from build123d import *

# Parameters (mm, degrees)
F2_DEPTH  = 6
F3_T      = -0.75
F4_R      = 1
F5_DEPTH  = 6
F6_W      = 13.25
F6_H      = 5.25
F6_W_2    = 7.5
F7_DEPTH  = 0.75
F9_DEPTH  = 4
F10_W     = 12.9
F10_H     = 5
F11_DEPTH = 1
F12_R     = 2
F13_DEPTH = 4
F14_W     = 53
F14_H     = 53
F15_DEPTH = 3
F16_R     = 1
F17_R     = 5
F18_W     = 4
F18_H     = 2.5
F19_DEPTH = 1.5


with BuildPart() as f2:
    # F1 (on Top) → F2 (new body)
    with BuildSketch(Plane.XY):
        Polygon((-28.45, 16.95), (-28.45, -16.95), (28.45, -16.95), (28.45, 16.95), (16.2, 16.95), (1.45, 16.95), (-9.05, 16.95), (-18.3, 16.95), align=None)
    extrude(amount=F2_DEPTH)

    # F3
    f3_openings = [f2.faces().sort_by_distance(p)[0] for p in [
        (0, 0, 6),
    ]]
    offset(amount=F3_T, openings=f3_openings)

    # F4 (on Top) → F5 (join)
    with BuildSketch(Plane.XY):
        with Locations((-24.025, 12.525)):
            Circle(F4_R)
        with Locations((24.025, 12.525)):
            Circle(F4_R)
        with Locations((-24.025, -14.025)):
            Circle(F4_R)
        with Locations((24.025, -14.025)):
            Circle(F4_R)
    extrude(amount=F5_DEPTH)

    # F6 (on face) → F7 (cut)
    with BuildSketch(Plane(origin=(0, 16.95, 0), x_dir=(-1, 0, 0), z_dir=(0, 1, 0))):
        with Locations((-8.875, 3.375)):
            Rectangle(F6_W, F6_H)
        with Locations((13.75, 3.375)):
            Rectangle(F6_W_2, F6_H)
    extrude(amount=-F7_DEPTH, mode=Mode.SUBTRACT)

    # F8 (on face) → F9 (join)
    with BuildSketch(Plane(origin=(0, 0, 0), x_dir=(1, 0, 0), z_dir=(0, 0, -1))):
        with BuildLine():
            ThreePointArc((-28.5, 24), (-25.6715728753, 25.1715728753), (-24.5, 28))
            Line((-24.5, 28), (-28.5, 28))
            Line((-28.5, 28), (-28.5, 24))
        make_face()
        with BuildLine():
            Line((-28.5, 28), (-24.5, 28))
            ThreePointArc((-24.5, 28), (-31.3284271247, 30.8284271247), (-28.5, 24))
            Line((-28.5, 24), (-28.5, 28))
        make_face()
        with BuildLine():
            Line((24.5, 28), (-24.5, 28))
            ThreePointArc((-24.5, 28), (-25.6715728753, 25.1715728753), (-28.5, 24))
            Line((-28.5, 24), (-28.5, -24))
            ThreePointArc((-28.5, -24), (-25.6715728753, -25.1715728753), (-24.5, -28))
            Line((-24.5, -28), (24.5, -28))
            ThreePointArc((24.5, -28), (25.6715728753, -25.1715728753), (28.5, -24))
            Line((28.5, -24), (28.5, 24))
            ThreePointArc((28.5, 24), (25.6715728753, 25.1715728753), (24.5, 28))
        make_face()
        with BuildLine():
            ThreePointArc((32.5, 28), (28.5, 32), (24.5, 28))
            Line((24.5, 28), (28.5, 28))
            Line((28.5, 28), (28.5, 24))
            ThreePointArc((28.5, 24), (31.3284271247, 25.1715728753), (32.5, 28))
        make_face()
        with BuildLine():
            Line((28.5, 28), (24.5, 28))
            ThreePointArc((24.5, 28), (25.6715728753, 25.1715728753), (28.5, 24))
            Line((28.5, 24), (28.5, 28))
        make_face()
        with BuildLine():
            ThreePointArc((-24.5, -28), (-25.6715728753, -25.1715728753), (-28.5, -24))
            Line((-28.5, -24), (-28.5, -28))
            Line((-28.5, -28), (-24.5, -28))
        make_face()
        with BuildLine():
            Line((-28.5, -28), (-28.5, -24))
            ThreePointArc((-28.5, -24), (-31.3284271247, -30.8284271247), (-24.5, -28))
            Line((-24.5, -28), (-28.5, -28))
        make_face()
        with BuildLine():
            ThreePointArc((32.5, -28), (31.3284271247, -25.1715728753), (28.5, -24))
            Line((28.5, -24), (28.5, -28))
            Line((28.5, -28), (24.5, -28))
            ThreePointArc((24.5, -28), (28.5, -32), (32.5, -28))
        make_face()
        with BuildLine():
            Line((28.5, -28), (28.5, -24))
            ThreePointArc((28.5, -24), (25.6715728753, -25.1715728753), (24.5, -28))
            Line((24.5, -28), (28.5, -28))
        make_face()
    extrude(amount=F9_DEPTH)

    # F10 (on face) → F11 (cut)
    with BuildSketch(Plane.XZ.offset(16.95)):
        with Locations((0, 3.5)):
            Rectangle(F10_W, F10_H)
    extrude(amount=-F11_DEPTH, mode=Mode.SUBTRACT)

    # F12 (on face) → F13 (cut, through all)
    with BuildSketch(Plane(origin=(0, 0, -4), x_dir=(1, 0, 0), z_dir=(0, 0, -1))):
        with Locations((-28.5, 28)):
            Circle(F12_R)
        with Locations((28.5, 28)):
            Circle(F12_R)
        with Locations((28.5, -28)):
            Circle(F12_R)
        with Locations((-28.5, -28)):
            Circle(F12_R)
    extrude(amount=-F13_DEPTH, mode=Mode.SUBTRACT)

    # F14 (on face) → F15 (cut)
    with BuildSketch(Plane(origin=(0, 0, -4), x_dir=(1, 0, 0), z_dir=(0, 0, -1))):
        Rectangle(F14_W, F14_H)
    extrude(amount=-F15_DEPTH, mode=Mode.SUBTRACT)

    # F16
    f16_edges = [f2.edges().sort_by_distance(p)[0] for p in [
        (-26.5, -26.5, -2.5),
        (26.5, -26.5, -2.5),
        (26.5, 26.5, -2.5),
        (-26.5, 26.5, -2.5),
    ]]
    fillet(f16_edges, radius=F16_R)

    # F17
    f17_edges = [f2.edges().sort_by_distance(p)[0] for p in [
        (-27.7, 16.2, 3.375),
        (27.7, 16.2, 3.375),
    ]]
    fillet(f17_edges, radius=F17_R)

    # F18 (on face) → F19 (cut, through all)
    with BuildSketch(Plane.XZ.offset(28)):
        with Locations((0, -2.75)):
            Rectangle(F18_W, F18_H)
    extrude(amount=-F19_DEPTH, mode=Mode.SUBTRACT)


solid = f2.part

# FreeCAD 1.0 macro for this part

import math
import FreeCAD as App
import Part
import Sketcher
Q = App.Units.Quantity


def edges_at(feature, points):
    """Names of the edges that pass closest to the given points."""
    edges = feature.Shape.Edges
    near = lambda p: min(range(len(edges)), key=lambda i: edges[i].distToShape(Part.Vertex(*p))[0])
    return sorted({f"Edge{near(p) + 1}" for p in points})


def faces_at(feature, points):
    """Names of the faces that lie closest to the given points."""
    faces = feature.Shape.Faces
    near = lambda p: min(range(len(faces)), key=lambda i: faces[i].distToShape(Part.Vertex(*p))[0])
    return sorted({f"Face{near(p) + 1}" for p in points})


def add_polygon(sketch, points):
    """Adds a closed chain of lines whose ends are joined by coincident constraints."""
    first, n = sketch.GeometryCount, len(points)
    for a, b in zip(points, points[1:] + points[:1]):
        sketch.addGeometry(Part.LineSegment(App.Vector(*a, 0), App.Vector(*b, 0)), False)
    for i in range(n):
        sketch.addConstraint(Sketcher.Constraint("Coincident", first + i, 2, first + (i + 1) % n, 1))

doc = App.newDocument("Part")
body = doc.addObject("PartDesign::Body", "Body")

sketch1 = doc.addObject("Sketcher::SketchObject", "Sketch")
body.addObject(sketch1)
sketch1.AttachmentSupport = (doc.XY_Plane, [""])
sketch1.MapMode = "FlatFace"
add_polygon(sketch1, [(-28, 17), (-28, -17), (28, -17), (28, 17)])
sketch1.addConstraint([
    Sketcher.Constraint("Vertical", 0),
    Sketcher.Constraint("Horizontal", 1),
    Sketcher.Constraint("Vertical", 2),
    Sketcher.Constraint("Horizontal", 3),
    Sketcher.Constraint("Symmetric", 0, 2, 2, 2, -1, 1),
    Sketcher.Constraint("DistanceX", 1, 1, 1, 2, Q("56.9 mm")),
    Sketcher.Constraint("DistanceY", 0, 2, 0, 1, Q("33.9 mm")),
])
pad1 = doc.addObject("PartDesign::Pad", "Pad")
body.addObject(pad1)
pad1.Profile = sketch1
pad1.Length = 6
doc.recompute()

thickness = doc.addObject("PartDesign::Thickness", "Thickness")
body.addObject(thickness)
thickness.Base = (pad1, faces_at(pad1, [(0, 0, 6)]))
thickness.Value = 0.75
thickness.Reversed = True
thickness.Join = "Arc"

sketch2 = doc.addObject("Sketcher::SketchObject", "Sketch001")
body.addObject(sketch2)
sketch2.AttachmentSupport = (doc.XY_Plane, [""])
sketch2.MapMode = "FlatFace"
sketch2.addGeometry([
    Part.Circle(App.Vector(-24, 12.5, 0), App.Vector(0, 0, 1), 1),
    Part.Circle(App.Vector(24, 12.5, 0), App.Vector(0, 0, 1), 1),
    Part.Circle(App.Vector(-24, -14, 0), App.Vector(0, 0, 1), 1),
    Part.Circle(App.Vector(24, -14, 0), App.Vector(0, 0, 1), 1),
], False)
sketch2.addConstraint([
    Sketcher.Constraint("Equal", 0, 1),
    Sketcher.Constraint("Equal", 1, 2),
    Sketcher.Constraint("Equal", 2, 3),
    Sketcher.Constraint("Symmetric", 0, 3, 1, 3, -2),
    Sketcher.Constraint("Symmetric", 2, 3, 3, 3, -2),
    Sketcher.Constraint("Vertical", 0, 3, 2, 3),
    Sketcher.Constraint("Diameter", 0, Q("2 mm")),
    Sketcher.Constraint("DistanceX", 0, 3, 1, 3, Q("48.05 mm")),
    Sketcher.Constraint("DistanceY", 2, 3, 0, 3, Q("26.55 mm")),
    Sketcher.Constraint("DistanceY", -1, 1, 0, 3, Q("12.525 mm")),
])
pad2 = doc.addObject("PartDesign::Pad", "Pad001")
body.addObject(pad2)
pad2.Profile = sketch2
pad2.Length = 6

sketch3 = doc.addObject("Sketcher::SketchObject", "Sketch002")
body.addObject(sketch3)
sketch3.AttachmentSupport = (doc.XZ_Plane, [""])
sketch3.MapMode = "FlatFace"
sketch3.AttachmentOffset = App.Placement(App.Vector(0, 0, -16.95), App.Rotation())
add_polygon(sketch3, [(16, 6), (16, 1), (2, 1), (2, 6)])
add_polygon(sketch3, [(-10, 6), (-10, 1), (-18, 1), (-18, 6)])
sketch3.addConstraint([
    Sketcher.Constraint("Vertical", 0),
    Sketcher.Constraint("Horizontal", 1),
    Sketcher.Constraint("Vertical", 2),
    Sketcher.Constraint("Horizontal", 3),
    Sketcher.Constraint("Vertical", 4),
    Sketcher.Constraint("Horizontal", 5),
    Sketcher.Constraint("Vertical", 6),
    Sketcher.Constraint("Horizontal", 7),
    Sketcher.Constraint("Horizontal", 1, 2, 4, 2),
    Sketcher.Constraint("Horizontal", 3, 2, 6, 2),
    Sketcher.Constraint("DistanceX", 5, 2, 5, 1, Q("7.5 mm")),
    Sketcher.Constraint("DistanceY", -1, 1, 2, 2, Q("6 mm")),
    Sketcher.Constraint("DistanceX", 4, 2, -1, 1, Q("10 mm")),
    Sketcher.Constraint("DistanceX", 5, 2, 0, 2, Q("33 mm")),
    Sketcher.Constraint("DistanceX", 1, 2, 1, 1, Q("13.25 mm")),
    Sketcher.Constraint("DistanceY", 0, 2, 0, 1, Q("5.25 mm")),
])
pocket1 = doc.addObject("PartDesign::Pocket", "Pocket")
body.addObject(pocket1)
pocket1.Profile = sketch3
pocket1.Length = 0.75
pocket1.Reversed = True

sketch4 = doc.addObject("Sketcher::SketchObject", "Sketch003")
body.addObject(sketch4)
sketch4.AttachmentSupport = (doc.XY_Plane, [""])
sketch4.MapMode = "FlatFace"
sketch4.addGeometry([
    Part.ArcOfCircle(Part.Circle(App.Vector(-28.5, -28, 0), App.Vector(0, 0, 1), 4), math.radians(90), math.radians(360)),
    Part.LineSegment(App.Vector(-28.5, -24, 0), App.Vector(-28.5, 24, 0)),
    Part.ArcOfCircle(Part.Circle(App.Vector(-28.5, 28, 0), App.Vector(0, 0, 1), 4), math.radians(0), math.radians(270)),
    Part.LineSegment(App.Vector(-24.5, 28, 0), App.Vector(24.5, 28, 0)),
    Part.ArcOfCircle(Part.Circle(App.Vector(28.5, 28, 0), App.Vector(0, 0, 1), 4), math.radians(0), math.radians(180)),
    Part.ArcOfCircle(Part.Circle(App.Vector(28.5, 28, 0), App.Vector(0, 0, 1), 4), math.radians(-90), math.radians(0)),
    Part.LineSegment(App.Vector(28.5, 24, 0), App.Vector(28.5, -24, 0)),
    Part.ArcOfCircle(Part.Circle(App.Vector(28.5, -28, 0), App.Vector(0, 0, 1), 4), math.radians(0), math.radians(90)),
    Part.ArcOfCircle(Part.Circle(App.Vector(28.5, -28, 0), App.Vector(0, 0, 1), 4), math.radians(180), math.radians(360)),
    Part.LineSegment(App.Vector(24.5, -28, 0), App.Vector(-24.5, -28, 0)),
], False)
sketch4.addConstraint([
    Sketcher.Constraint("Coincident", 0, 1, 1, 1),
    Sketcher.Constraint("Coincident", 1, 2, 2, 2),
    Sketcher.Constraint("Coincident", 2, 1, 3, 1),
    Sketcher.Constraint("Coincident", 3, 2, 4, 2),
    Sketcher.Constraint("Tangent", 4, 1, 5, 2),
    Sketcher.Constraint("Coincident", 5, 1, 6, 1),
    Sketcher.Constraint("Coincident", 6, 2, 7, 2),
    Sketcher.Constraint("Tangent", 7, 1, 8, 2),
    Sketcher.Constraint("Coincident", 8, 1, 9, 1),
    Sketcher.Constraint("Coincident", 9, 2, 0, 2),
    Sketcher.Constraint("Vertical", 1),
    Sketcher.Constraint("Horizontal", 3),
    Sketcher.Constraint("Vertical", 6),
    Sketcher.Constraint("Horizontal", 9),
    Sketcher.Constraint("Equal", 0, 2),
    Sketcher.Constraint("Equal", 2, 4),
    Sketcher.Constraint("Equal", 4, 5),
    Sketcher.Constraint("Equal", 5, 7),
    Sketcher.Constraint("Equal", 7, 8),
    Sketcher.Constraint("Symmetric", 0, 3, 4, 3, -1, 1),
    Sketcher.Constraint("Symmetric", 2, 3, 7, 3, -1, 1),
    Sketcher.Constraint("Symmetric", 2, 3, 4, 3, -2),
    Sketcher.Constraint("Horizontal", 5, 3, 2, 1),
    Sketcher.Constraint("Horizontal", 3, 2, 4, 1),
    Sketcher.Constraint("Horizontal", 8, 3, 7, 1),
    Sketcher.Constraint("Horizontal", 7, 1, 8, 1),
    Sketcher.Constraint("Vertical", 2, 3, 0, 1),
    Sketcher.Constraint("Vertical", 8, 3, 5, 1),
    Sketcher.Constraint("Radius", 0, Q("4 mm")),
    Sketcher.Constraint("DistanceX", 3, 1, 3, 2, Q("49 mm")),
    Sketcher.Constraint("DistanceY", 1, 1, 1, 2, Q("48 mm")),
])
pad3 = doc.addObject("PartDesign::Pad", "Pad002")
body.addObject(pad3)
pad3.Profile = sketch4
pad3.Length = 4
pad3.Reversed = True

sketch5 = doc.addObject("Sketcher::SketchObject", "Sketch004")
body.addObject(sketch5)
sketch5.AttachmentSupport = (doc.XZ_Plane, [""])
sketch5.MapMode = "FlatFace"
sketch5.AttachmentOffset = App.Placement(App.Vector(0, 0, 16.95), App.Rotation())
add_polygon(sketch5, [(-6, 6), (-6, 1), (6, 1), (6, 6)])
sketch5.addConstraint([
    Sketcher.Constraint("Vertical", 0),
    Sketcher.Constraint("Horizontal", 1),
    Sketcher.Constraint("Vertical", 2),
    Sketcher.Constraint("Horizontal", 3),
    Sketcher.Constraint("DistanceY", 0, 2, 0, 1, Q("5 mm")),
    Sketcher.Constraint("DistanceX", 1, 1, 1, 2, Q("12.9 mm")),
    Sketcher.Constraint("DistanceY", -1, 1, 0, 2, Q("1 mm")),
    Sketcher.Constraint("DistanceX", 0, 2, -1, 1, Q("6.45 mm")),
])
pocket2 = doc.addObject("PartDesign::Pocket", "Pocket001")
body.addObject(pocket2)
pocket2.Profile = sketch5
pocket2.Length = 1

sketch6 = doc.addObject("Sketcher::SketchObject", "Sketch005")
body.addObject(sketch6)
sketch6.AttachmentSupport = (doc.XY_Plane, [""])
sketch6.MapMode = "FlatFace"
sketch6.AttachmentOffset = App.Placement(App.Vector(0, 0, -4), App.Rotation())
sketch6.addGeometry([
    Part.Circle(App.Vector(-28.5, -28, 0), App.Vector(0, 0, 1), 2),
    Part.Circle(App.Vector(28.5, -28, 0), App.Vector(0, 0, 1), 2),
    Part.Circle(App.Vector(28.5, 28, 0), App.Vector(0, 0, 1), 2),
    Part.Circle(App.Vector(-28.5, 28, 0), App.Vector(0, 0, 1), 2),
], False)
sketch6.addConstraint([
    Sketcher.Constraint("Equal", 0, 1),
    Sketcher.Constraint("Equal", 1, 2),
    Sketcher.Constraint("Equal", 2, 3),
    Sketcher.Constraint("Symmetric", 0, 3, 2, 3, -1, 1),
    Sketcher.Constraint("Symmetric", 1, 3, 3, 3, -1, 1),
    Sketcher.Constraint("Symmetric", 0, 3, 1, 3, -2),
    Sketcher.Constraint("Diameter", 0, Q("4 mm")),
    Sketcher.Constraint("DistanceY", 0, 3, -1, 1, Q("28 mm")),
    Sketcher.Constraint("DistanceX", 0, 3, 1, 3, Q("57 mm")),
])
pocket3 = doc.addObject("PartDesign::Pocket", "Pocket002")
body.addObject(pocket3)
pocket3.Profile = sketch6
pocket3.Type = "ThroughAll"
pocket3.Reversed = True

sketch7 = doc.addObject("Sketcher::SketchObject", "Sketch006")
body.addObject(sketch7)
sketch7.AttachmentSupport = (doc.XY_Plane, [""])
sketch7.MapMode = "FlatFace"
sketch7.AttachmentOffset = App.Placement(App.Vector(0, 0, -4), App.Rotation())
add_polygon(sketch7, [(-26, -26), (-26, 26), (26, 26), (26, -26)])
sketch7.addConstraint([
    Sketcher.Constraint("Vertical", 0),
    Sketcher.Constraint("Horizontal", 1),
    Sketcher.Constraint("Vertical", 2),
    Sketcher.Constraint("Horizontal", 3),
    Sketcher.Constraint("Symmetric", 0, 2, 2, 2, -1, 1),
    Sketcher.Constraint("Equal", 3, 0),
    Sketcher.Constraint("DistanceX", 1, 1, 1, 2, Q("53 mm")),
])
pocket4 = doc.addObject("PartDesign::Pocket", "Pocket003")
body.addObject(pocket4)
pocket4.Profile = sketch7
pocket4.Length = 3
pocket4.Reversed = True
doc.recompute()

fillet = doc.addObject("PartDesign::Fillet", "Fillet")
body.addObject(fillet)
fillet.Base = (pocket4, edges_at(pocket4, [
    (-26.5, -26.5, -2.5),
    (26.5, -26.5, -2.5),
    (26.5, 26.5, -2.5),
    (-26.5, 26.5, -2.5),
]))
fillet.Radius = 1
doc.recompute()

fillet2 = doc.addObject("PartDesign::Fillet", "Fillet001")
body.addObject(fillet2)
fillet2.Base = (fillet, edges_at(fillet, [(-27.7, 16.2, 3.375), (27.7, 16.2, 3.375)]))
fillet2.Radius = 5

sketch8 = doc.addObject("Sketcher::SketchObject", "Sketch007")
body.addObject(sketch8)
sketch8.AttachmentSupport = (doc.XZ_Plane, [""])
sketch8.MapMode = "FlatFace"
sketch8.AttachmentOffset = App.Placement(App.Vector(0, 0, 28), App.Rotation())
add_polygon(sketch8, [(-2, -1.5), (-2, -4), (2, -4), (2, -1.5)])
sketch8.addConstraint([
    Sketcher.Constraint("Vertical", 0),
    Sketcher.Constraint("Horizontal", 1),
    Sketcher.Constraint("Vertical", 2),
    Sketcher.Constraint("Horizontal", 3),
    Sketcher.Constraint("DistanceX", 1, 1, 1, 2, Q("4 mm")),
    Sketcher.Constraint("DistanceY", 0, 2, 0, 1, Q("2.5 mm")),
    Sketcher.Constraint("DistanceX", 0, 2, -1, 1, Q("2 mm")),
    Sketcher.Constraint("DistanceY", 0, 2, -1, 1, Q("4 mm")),
])
pocket5 = doc.addObject("PartDesign::Pocket", "Pocket004")
body.addObject(pocket5)
pocket5.Profile = sketch8
pocket5.Length = 1.5

doc.recompute()
